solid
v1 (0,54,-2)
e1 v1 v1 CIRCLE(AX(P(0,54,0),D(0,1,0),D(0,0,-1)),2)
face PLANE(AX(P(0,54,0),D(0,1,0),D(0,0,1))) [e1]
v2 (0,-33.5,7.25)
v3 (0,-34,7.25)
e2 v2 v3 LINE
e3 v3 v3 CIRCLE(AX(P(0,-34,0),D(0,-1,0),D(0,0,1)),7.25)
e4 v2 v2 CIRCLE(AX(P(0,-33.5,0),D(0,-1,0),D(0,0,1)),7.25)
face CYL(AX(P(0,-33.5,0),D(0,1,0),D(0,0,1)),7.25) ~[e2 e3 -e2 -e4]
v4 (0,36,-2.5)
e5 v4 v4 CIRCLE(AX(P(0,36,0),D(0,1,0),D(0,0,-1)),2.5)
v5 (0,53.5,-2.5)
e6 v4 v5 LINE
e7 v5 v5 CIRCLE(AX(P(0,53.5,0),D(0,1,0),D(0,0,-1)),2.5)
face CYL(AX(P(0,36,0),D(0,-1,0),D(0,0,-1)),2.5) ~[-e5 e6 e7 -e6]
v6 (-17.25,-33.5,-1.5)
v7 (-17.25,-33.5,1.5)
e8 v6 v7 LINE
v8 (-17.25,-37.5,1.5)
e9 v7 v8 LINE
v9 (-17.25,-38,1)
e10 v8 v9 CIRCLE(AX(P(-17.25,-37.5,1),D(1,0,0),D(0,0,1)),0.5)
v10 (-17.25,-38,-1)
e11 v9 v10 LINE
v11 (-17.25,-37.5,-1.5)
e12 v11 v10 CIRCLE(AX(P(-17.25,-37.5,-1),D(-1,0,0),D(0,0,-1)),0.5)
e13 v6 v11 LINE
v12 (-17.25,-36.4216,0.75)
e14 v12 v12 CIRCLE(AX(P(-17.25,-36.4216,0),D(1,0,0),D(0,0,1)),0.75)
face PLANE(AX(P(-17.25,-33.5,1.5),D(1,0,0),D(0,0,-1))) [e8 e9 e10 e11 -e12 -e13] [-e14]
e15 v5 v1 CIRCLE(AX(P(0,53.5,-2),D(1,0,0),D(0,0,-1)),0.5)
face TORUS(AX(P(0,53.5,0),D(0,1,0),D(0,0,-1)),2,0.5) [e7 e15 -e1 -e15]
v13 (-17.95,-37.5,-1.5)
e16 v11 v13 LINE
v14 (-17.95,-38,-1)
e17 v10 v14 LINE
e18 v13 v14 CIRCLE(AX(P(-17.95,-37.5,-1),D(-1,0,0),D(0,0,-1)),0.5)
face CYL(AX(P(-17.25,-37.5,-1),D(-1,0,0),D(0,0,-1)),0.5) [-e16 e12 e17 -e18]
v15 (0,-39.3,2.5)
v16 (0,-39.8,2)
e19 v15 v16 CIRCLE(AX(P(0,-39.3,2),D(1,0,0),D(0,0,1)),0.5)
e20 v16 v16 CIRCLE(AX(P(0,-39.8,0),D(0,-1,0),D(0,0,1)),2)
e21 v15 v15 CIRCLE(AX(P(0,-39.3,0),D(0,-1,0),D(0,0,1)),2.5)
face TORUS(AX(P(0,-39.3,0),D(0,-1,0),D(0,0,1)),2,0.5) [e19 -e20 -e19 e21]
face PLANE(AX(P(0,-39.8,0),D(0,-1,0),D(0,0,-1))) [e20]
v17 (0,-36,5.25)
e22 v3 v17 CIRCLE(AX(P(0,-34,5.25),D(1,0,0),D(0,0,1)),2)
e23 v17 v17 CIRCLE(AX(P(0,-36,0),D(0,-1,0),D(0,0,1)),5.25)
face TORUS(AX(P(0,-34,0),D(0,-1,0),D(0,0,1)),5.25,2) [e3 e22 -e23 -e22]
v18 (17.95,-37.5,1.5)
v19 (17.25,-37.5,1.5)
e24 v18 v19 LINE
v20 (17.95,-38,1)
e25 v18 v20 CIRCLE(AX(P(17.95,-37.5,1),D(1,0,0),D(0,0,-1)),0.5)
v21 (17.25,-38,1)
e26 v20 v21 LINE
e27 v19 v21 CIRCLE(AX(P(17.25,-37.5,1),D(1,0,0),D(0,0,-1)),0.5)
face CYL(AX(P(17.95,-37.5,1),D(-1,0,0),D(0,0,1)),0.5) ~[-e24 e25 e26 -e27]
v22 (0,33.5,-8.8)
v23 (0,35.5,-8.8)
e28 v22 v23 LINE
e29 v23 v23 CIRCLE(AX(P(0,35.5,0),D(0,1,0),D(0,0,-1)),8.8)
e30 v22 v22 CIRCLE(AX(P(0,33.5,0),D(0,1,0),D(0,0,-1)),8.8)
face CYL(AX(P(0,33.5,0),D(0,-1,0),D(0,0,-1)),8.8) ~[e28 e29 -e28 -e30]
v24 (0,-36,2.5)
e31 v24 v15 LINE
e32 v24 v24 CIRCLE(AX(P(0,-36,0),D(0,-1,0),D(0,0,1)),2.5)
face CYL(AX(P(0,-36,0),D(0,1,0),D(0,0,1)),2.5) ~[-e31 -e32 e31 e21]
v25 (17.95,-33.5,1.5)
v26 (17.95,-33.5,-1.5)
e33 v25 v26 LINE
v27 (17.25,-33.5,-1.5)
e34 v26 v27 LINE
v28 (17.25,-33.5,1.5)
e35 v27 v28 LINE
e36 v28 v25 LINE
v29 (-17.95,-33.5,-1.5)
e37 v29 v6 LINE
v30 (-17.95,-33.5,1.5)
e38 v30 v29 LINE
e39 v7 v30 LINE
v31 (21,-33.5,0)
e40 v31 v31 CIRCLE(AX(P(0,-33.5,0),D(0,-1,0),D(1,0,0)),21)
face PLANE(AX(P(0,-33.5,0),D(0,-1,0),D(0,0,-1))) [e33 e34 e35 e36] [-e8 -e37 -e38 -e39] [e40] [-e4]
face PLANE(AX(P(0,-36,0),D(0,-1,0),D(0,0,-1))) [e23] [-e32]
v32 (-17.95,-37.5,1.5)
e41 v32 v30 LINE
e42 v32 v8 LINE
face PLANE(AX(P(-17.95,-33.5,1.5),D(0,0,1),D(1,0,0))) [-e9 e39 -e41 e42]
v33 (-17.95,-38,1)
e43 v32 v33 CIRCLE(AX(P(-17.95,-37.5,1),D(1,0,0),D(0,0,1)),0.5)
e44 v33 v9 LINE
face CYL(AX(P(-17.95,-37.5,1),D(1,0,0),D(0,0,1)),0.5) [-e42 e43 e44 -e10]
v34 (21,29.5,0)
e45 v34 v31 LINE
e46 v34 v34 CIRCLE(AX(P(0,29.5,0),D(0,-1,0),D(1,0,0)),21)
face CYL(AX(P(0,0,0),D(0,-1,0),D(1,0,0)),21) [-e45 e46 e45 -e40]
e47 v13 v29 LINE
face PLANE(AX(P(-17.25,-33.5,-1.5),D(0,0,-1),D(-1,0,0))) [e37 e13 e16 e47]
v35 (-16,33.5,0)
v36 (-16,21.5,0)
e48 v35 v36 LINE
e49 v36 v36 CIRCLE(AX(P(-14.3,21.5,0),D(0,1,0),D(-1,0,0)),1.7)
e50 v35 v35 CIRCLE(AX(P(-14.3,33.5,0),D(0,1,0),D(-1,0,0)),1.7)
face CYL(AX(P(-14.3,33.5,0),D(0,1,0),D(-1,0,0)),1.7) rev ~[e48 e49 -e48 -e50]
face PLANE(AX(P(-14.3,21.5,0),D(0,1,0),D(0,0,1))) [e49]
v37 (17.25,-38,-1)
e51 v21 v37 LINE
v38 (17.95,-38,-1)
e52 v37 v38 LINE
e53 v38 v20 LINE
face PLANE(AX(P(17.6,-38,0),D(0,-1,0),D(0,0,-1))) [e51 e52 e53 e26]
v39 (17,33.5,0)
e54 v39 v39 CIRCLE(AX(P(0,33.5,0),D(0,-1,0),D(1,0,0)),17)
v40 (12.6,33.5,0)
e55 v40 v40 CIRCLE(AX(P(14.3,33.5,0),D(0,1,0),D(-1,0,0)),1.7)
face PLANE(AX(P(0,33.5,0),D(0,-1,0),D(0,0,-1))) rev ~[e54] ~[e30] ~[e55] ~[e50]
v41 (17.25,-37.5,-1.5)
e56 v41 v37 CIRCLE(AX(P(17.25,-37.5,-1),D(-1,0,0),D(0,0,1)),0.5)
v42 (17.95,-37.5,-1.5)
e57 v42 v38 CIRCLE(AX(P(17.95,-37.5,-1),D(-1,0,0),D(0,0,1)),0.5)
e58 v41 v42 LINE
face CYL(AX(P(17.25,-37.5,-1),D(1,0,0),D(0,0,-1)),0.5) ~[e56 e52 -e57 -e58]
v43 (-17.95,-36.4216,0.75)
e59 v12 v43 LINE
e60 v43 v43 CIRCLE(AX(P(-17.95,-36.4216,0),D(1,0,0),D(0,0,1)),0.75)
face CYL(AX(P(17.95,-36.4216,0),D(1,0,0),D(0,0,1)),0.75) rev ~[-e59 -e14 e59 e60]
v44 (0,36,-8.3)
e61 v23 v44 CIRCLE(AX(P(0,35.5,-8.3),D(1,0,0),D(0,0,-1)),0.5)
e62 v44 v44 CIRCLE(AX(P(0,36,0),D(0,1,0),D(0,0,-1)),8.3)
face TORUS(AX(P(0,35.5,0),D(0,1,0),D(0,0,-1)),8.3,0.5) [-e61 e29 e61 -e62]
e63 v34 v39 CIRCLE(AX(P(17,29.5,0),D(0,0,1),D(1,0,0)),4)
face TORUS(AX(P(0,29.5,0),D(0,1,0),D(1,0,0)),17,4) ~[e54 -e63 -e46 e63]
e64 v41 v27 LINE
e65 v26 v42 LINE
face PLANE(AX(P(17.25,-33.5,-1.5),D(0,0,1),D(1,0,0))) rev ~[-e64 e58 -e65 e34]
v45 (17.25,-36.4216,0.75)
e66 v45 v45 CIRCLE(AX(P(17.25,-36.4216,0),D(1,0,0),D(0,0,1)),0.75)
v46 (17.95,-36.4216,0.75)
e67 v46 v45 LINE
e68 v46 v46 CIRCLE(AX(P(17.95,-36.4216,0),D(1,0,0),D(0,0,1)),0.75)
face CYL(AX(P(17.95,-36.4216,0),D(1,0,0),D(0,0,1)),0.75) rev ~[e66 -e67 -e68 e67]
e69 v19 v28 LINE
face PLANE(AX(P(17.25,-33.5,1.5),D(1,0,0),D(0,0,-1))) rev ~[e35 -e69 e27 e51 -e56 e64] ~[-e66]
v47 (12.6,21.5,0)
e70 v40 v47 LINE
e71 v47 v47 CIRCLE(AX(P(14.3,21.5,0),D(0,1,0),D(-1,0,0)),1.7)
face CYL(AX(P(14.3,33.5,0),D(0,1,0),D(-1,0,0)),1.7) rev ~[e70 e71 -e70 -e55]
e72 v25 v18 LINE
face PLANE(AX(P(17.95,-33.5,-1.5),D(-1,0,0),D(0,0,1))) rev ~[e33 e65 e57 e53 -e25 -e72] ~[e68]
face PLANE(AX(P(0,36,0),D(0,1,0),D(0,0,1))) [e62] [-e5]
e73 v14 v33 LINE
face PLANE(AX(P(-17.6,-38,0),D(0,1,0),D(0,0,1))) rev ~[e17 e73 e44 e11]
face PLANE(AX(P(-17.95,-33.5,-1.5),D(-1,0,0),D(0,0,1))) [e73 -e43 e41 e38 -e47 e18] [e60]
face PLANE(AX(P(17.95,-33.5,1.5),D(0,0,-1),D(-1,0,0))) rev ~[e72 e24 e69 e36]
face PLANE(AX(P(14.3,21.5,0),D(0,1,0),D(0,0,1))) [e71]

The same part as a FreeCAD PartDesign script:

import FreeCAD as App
import Part
import Sketcher


def edges_at(feature, points):
    """Names of the edges that pass closest to the given points."""
    edges = feature.Shape.Edges
    near = lambda p: min(range(len(edges)), key=lambda i: edges[i].distToShape(Part.Vertex(*p))[0])
    return sorted({f"Edge{near(p) + 1}" for p in points})

doc = App.newDocument("Part")
body = doc.addObject("PartDesign::Body", "Body")

# Sketch on XZ plane
sketch1 = body.newObject("Sketcher::SketchObject", "Sketch")
sketch1.AttachmentSupport = (doc.getObject("XZ_Plane"), [""])
sketch1.MapMode = "FlatFace"
sketch1.addGeometry(Part.Circle(App.Vector(0, 0, 0), App.Vector(0, 0, 1), 21), False)
sketch1.addConstraint(Sketcher.Constraint("Coincident", 0, 3, -1, 1))
sketch1.addConstraint(Sketcher.Constraint("Diameter", 0, 42.0))
pad1 = body.newObject("PartDesign::Pad", "Pad")
pad1.Profile = sketch1
pad1.Length = 67
pad1.Midplane = True
doc.recompute()

fillet = body.newObject("PartDesign::Fillet", "Fillet")
fillet.Base = (pad1, edges_at(pad1, [(-21, 33.5, 0)]))
fillet.Radius = 4

# Sketch on XZ plane
sketch2 = body.newObject("Sketcher::SketchObject", "Sketch001")
sketch2.AttachmentSupport = (doc.getObject("XZ_Plane"), [""])
sketch2.MapMode = "FlatFace"
sketch2.AttachmentOffset = App.Placement(App.Vector(0, 0, -33.5), App.Rotation())
sketch2.addGeometry(Part.Circle(App.Vector(0, 0, 0), App.Vector(0, 0, 1), 8.8), False)
sketch2.addConstraint(Sketcher.Constraint("Coincident", 0, 3, -1, 1))
sketch2.addConstraint(Sketcher.Constraint("Diameter", 0, 17.6))
pad2 = body.newObject("PartDesign::Pad", "Pad001")
pad2.Profile = sketch2
pad2.Length = 5
pad2.Midplane = True

# Sketch on XZ plane
sketch3 = body.newObject("Sketcher::SketchObject", "Sketch002")
sketch3.AttachmentSupport = (doc.getObject("XZ_Plane"), [""])
sketch3.MapMode = "FlatFace"
sketch3.AttachmentOffset = App.Placement(App.Vector(0, 0, -36), App.Rotation())
sketch3.addGeometry(Part.Circle(App.Vector(0, 0, 0), App.Vector(0, 0, 1), 2.5), False)
sketch3.addConstraint(Sketcher.Constraint("Coincident", 0, 3, -1, 1))
sketch3.addConstraint(Sketcher.Constraint("Diameter", 0, 5.0))
pad3 = body.newObject("PartDesign::Pad", "Pad002")
pad3.Profile = sketch3
pad3.Length = 18
pad3.Reversed = True
doc.recompute()

fillet2 = body.newObject("PartDesign::Fillet", "Fillet001")
fillet2.Base = (pad3, edges_at(pad3, [(0, 36, 8.8), (0, 54, 2.5)]))
fillet2.Radius = 0.5

# Sketch on XZ plane
sketch4 = body.newObject("Sketcher::SketchObject", "Sketch003")
sketch4.AttachmentSupport = (doc.getObject("XZ_Plane"), [""])
sketch4.MapMode = "FlatFace"
sketch4.AttachmentOffset = App.Placement(App.Vector(0, 0, -33.5), App.Rotation())
sketch4.addGeometry(Part.Circle(App.Vector(-14.3, 0, 0), App.Vector(0, 0, 1), 1.7), False)
sketch4.addGeometry(Part.Circle(App.Vector(14.3, 0, 0), App.Vector(0, 0, 1), 1.7), False)
sketch4.addConstraint(Sketcher.Constraint("Equal", 0, 1))
sketch4.addConstraint(Sketcher.Constraint("Symmetric", 0, 3, 1, 3, -1, 1))
sketch4.addConstraint(Sketcher.Constraint("PointOnObject", 0, 3, -1))
sketch4.addConstraint(Sketcher.Constraint("Diameter", 0, 3.4))
sketch4.addConstraint(Sketcher.Constraint("DistanceX", 0, 3, -1, 1, 14.3))
pocket1 = body.newObject("PartDesign::Pocket", "Pocket")
pocket1.Profile = sketch4
pocket1.Length = 12
pocket1.Reversed = True

# Sketch on XZ plane
sketch5 = body.newObject("Sketcher::SketchObject", "Sketch004")
sketch5.AttachmentSupport = (doc.getObject("XZ_Plane"), [""])
sketch5.MapMode = "FlatFace"
sketch5.AttachmentOffset = App.Placement(App.Vector(0, 0, 33.5), App.Rotation())
sketch5.addGeometry(Part.LineSegment(App.Vector(17.25, 1.5, 0), App.Vector(17.25, -1.5, 0)), False)
sketch5.addGeometry(Part.LineSegment(App.Vector(17.25, -1.5, 0), App.Vector(17.95, -1.5, 0)), False)
sketch5.addGeometry(Part.LineSegment(App.Vector(17.95, -1.5, 0), App.Vector(17.95, 1.5, 0)), False)
sketch5.addGeometry(Part.LineSegment(App.Vector(17.95, 1.5, 0), App.Vector(17.25, 1.5, 0)), False)
sketch5.addGeometry(Part.LineSegment(App.Vector(-17.95, -1.5, 0), App.Vector(-17.25, -1.5, 0)), False)
sketch5.addGeometry(Part.LineSegment(App.Vector(-17.25, -1.5, 0), App.Vector(-17.25, 1.5, 0)), False)
sketch5.addGeometry(Part.LineSegment(App.Vector(-17.25, 1.5, 0), App.Vector(-17.95, 1.5, 0)), False)
sketch5.addGeometry(Part.LineSegment(App.Vector(-17.95, 1.5, 0), App.Vector(-17.95, -1.5, 0)), False)
sketch5.addConstraint(Sketcher.Constraint("Coincident", 0, 2, 1, 1))
sketch5.addConstraint(Sketcher.Constraint("Coincident", 1, 2, 2, 1))
sketch5.addConstraint(Sketcher.Constraint("Coincident", 2, 2, 3, 1))
sketch5.addConstraint(Sketcher.Constraint("Coincident", 3, 2, 0, 1))
sketch5.addConstraint(Sketcher.Constraint("Coincident", 4, 2, 5, 1))
sketch5.addConstraint(Sketcher.Constraint("Coincident", 5, 2, 6, 1))
sketch5.addConstraint(Sketcher.Constraint("Coincident", 6, 2, 7, 1))
sketch5.addConstraint(Sketcher.Constraint("Coincident", 7, 2, 4, 1))
sketch5.addConstraint(Sketcher.Constraint("Vertical", 0))
sketch5.addConstraint(Sketcher.Constraint("Horizontal", 1))
sketch5.addConstraint(Sketcher.Constraint("Vertical", 2))
sketch5.addConstraint(Sketcher.Constraint("Horizontal", 3))
sketch5.addConstraint(Sketcher.Constraint("Horizontal", 4))
sketch5.addConstraint(Sketcher.Constraint("Vertical", 5))
sketch5.addConstraint(Sketcher.Constraint("Horizontal", 6))
sketch5.addConstraint(Sketcher.Constraint("Vertical", 7))
sketch5.addConstraint(Sketcher.Constraint("Symmetric", 3, 2, 4, 2, -1, 1))
sketch5.addConstraint(Sketcher.Constraint("Symmetric", 1, 2, 6, 2, -1, 1))
sketch5.addConstraint(Sketcher.Constraint("Horizontal", 1, 2, 4, 2))
sketch5.addConstraint(Sketcher.Constraint("DistanceY", 0, 2, 0, 1, 3.0))
sketch5.addConstraint(Sketcher.Constraint("DistanceX", 1, 1, 1, 2, 0.7))
sketch5.addConstraint(Sketcher.Constraint("DistanceX", 4, 2, 0, 2, 34.5))
pad4 = body.newObject("PartDesign::Pad", "Pad003")
pad4.Profile = sketch5
pad4.Length = 9
pad4.Midplane = True
doc.recompute()

fillet3 = body.newObject("PartDesign::Fillet", "Fillet002")
fillet3.Base = (pad4, edges_at(pad4, [
    (-17.6, -38, -1.5),
    (-17.6, -38, 1.5),
    (17.6, -38, -1.5),
    (17.6, -38, 1.5),
]))
fillet3.Radius = 0.5

# Sketch on YZ plane
sketch6 = body.newObject("Sketcher::SketchObject", "Sketch005")
sketch6.AttachmentSupport = (doc.getObject("YZ_Plane"), [""])
sketch6.MapMode = "FlatFace"
sketch6.AttachmentOffset = App.Placement(App.Vector(0, 0, 17.95), App.Rotation())
sketch6.addGeometry(Part.Circle(App.Vector(-36.4216, 0, 0), App.Vector(0, 0, 1), 0.75), False)
sketch6.addConstraint(Sketcher.Constraint("PointOnObject", 0, 3, -1))
sketch6.addConstraint(Sketcher.Constraint("Diameter", 0, 1.5))
sketch6.addConstraint(Sketcher.Constraint("DistanceX", 0, 3, -1, 1, 36.4216))
pocket2 = body.newObject("PartDesign::Pocket", "Pocket001")
pocket2.Profile = sketch6
pocket2.Length = 70

# Sketch on XZ plane
sketch7 = body.newObject("Sketcher::SketchObject", "Sketch006")
sketch7.AttachmentSupport = (doc.getObject("XZ_Plane"), [""])
sketch7.MapMode = "FlatFace"
sketch7.AttachmentOffset = App.Placement(App.Vector(0, 0, 33.5), App.Rotation())
sketch7.addGeometry(Part.Circle(App.Vector(0, 0, 0), App.Vector(0, 0, 1), 7.25), False)
sketch7.addConstraint(Sketcher.Constraint("Coincident", 0, 3, -1, 1))
sketch7.addConstraint(Sketcher.Constraint("Diameter", 0, 14.5))
pad5 = body.newObject("PartDesign::Pad", "Pad004")
pad5.Profile = sketch7
pad5.Length = 5
pad5.Midplane = True
doc.recompute()

fillet4 = body.newObject("PartDesign::Fillet", "Fillet003")
fillet4.Base = (pad5, edges_at(pad5, [(0, -36, -7.25)]))
fillet4.Radius = 2

# Sketch on XZ plane
sketch8 = body.newObject("Sketcher::SketchObject", "Sketch007")
sketch8.AttachmentSupport = (doc.getObject("XZ_Plane"), [""])
sketch8.MapMode = "FlatFace"
sketch8.AttachmentOffset = App.Placement(App.Vector(0, 0, 36), App.Rotation())
sketch8.addGeometry(Part.Circle(App.Vector(0, 0, 0), App.Vector(0, 0, 1), 2.5), False)
sketch8.addConstraint(Sketcher.Constraint("Coincident", 0, 3, -1, 1))
sketch8.addConstraint(Sketcher.Constraint("Diameter", 0, 5.0))
pad6 = body.newObject("PartDesign::Pad", "Pad005")
pad6.Profile = sketch8
pad6.Length = 7.6
pad6.Midplane = True
doc.recompute()

fillet5 = body.newObject("PartDesign::Fillet", "Fillet004")
fillet5.Base = (pad6, edges_at(pad6, [(0, -39.8, -2.5)]))
fillet5.Radius = 0.5

doc.recompute()
